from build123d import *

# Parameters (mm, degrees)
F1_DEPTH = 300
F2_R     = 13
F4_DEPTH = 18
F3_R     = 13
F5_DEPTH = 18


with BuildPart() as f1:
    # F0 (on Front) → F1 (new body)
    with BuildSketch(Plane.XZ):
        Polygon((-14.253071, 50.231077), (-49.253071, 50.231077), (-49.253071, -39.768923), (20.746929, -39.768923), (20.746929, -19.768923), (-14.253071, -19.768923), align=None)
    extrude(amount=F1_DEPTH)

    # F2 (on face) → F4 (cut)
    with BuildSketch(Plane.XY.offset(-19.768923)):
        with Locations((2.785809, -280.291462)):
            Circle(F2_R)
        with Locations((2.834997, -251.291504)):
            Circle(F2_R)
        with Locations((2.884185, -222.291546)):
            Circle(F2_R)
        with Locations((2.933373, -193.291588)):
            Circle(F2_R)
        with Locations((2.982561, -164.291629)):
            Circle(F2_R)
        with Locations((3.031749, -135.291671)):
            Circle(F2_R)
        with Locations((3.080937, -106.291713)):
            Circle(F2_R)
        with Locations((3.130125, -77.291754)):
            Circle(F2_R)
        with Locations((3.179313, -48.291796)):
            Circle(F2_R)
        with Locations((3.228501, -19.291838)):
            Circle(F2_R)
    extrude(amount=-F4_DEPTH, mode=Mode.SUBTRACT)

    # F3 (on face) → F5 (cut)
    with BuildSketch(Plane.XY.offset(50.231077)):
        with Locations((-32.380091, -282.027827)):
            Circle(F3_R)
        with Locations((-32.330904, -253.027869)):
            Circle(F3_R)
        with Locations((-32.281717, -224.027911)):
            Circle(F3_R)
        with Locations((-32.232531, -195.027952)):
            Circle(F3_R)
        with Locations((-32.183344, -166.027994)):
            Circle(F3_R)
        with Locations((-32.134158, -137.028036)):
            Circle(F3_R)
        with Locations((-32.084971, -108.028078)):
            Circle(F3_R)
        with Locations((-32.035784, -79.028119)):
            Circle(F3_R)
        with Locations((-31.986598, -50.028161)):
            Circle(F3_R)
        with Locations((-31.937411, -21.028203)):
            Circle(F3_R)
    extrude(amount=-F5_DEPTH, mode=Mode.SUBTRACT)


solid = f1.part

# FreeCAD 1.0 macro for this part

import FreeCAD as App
import Part
import Sketcher

V = App.Vector
Q = App.Units.Quantity


def add_polygon(sketch, points):
    """Adds a closed chain of lines whose ends are joined by coincident constraints."""
    first, n = sketch.GeometryCount, len(points)
    for a, b in zip(points, points[1:] + points[:1]):
        sketch.addGeometry(Part.LineSegment(App.Vector(*a, 0), App.Vector(*b, 0)), False)
    for i in range(n):
        sketch.addConstraint(Sketcher.Constraint("Coincident", first + i, 2, first + (i + 1) % n, 1))

doc = App.newDocument("Part")
body = doc.addObject("PartDesign::Body", "Body")

sketch1 = body.newObject("Sketcher::SketchObject", "Sketch")
sketch1.AttachmentSupport = (doc.getObject("XZ_Plane"), [""])
sketch1.MapMode = "FlatFace"
add_polygon(sketch1, [(-14, 50), (-49, 50), (-49, -40), (21, -40), (21, -20), (-14, -20)])
sketch1.addConstraint([
    Sketcher.Constraint("Horizontal", 0),
    Sketcher.Constraint("Vertical", 1),
    Sketcher.Constraint("Horizontal", 2),
    Sketcher.Constraint("Vertical", 3),
    Sketcher.Constraint("Horizontal", 4),
    Sketcher.Constraint("Vertical", 5),
    Sketcher.Constraint("Equal", 0, 4),
    Sketcher.Constraint("Equal", 2, 5),
    Sketcher.Constraint("DistanceX", 0, 2, 0, 1, Q("35 mm")),
    Sketcher.Constraint("DistanceY", 1, 2, 1, 1, Q("90 mm")),
    Sketcher.Constraint("DistanceX", 0, 2, -1, 1, Q("49.253071 mm")),
    Sketcher.Constraint("DistanceY", -1, 1, 0, 2, Q("50.231077 mm")),
])
pad1 = body.newObject("PartDesign::Pad", "Pad")
pad1.Profile = sketch1
pad1.Length = 300

sketch2 = body.newObject("Sketcher::SketchObject", "Sketch001")
sketch2.AttachmentSupport = (doc.getObject("XY_Plane"), [""])
sketch2.MapMode = "FlatFace"
sketch2.AttachmentOffset = App.Placement(V(0, 0, -19.768923), App.Rotation())
sketch2.addGeometry([
    Part.Circle(V(3, -280, 0), V(0, 0, 1), 13),
    Part.Circle(V(3, -251, 0), V(0, 0, 1), 13),
    Part.Circle(V(3, -222, 0), V(0, 0, 1), 13),
    Part.Circle(V(3, -193, 0), V(0, 0, 1), 13),
    Part.Circle(V(3, -164, 0), V(0, 0, 1), 13),
    Part.Circle(V(3, -135, 0), V(0, 0, 1), 13),
    Part.Circle(V(3, -106, 0), V(0, 0, 1), 13),
    Part.Circle(V(3, -77, 0), V(0, 0, 1), 13),
    Part.Circle(V(3, -48, 0), V(0, 0, 1), 13),
    Part.Circle(V(3, -19, 0), V(0, 0, 1), 13),
], False)
sketch2.addConstraint([
    Sketcher.Constraint("Equal", 0, 1),
    Sketcher.Constraint("Equal", 1, 2),
    Sketcher.Constraint("Equal", 2, 3),
    Sketcher.Constraint("Equal", 3, 4),
    Sketcher.Constraint("Equal", 4, 5),
    Sketcher.Constraint("Equal", 5, 6),
    Sketcher.Constraint("Equal", 6, 7),
    Sketcher.Constraint("Equal", 7, 8),
    Sketcher.Constraint("Equal", 8, 9),
    Sketcher.Constraint("Diameter", 0, Q("26 mm")),
    Sketcher.Constraint("DistanceX", -1, 1, 9, 3, Q("3.228501 mm")),
    Sketcher.Constraint("DistanceX", -1, 1, 0, 3, Q("2.785809 mm")),
    Sketcher.Constraint("DistanceX", -1, 1, 4, 3, Q("2.982561 mm")),
    Sketcher.Constraint("DistanceY", 4, 3, -1, 1, Q("164.291629 mm")),
    Sketcher.Constraint("DistanceX", -1, 1, 5, 3, Q("3.031749 mm")),
    Sketcher.Constraint("DistanceY", 5, 3, -1, 1, Q("135.291671 mm")),
    Sketcher.Constraint("DistanceX", 0, 3, 1, 3, Q("0.049188 mm")),
    Sketcher.Constraint("DistanceY", 0, 3, 1, 3, Q("28.999958 mm")),
    Sketcher.Constraint("DistanceX", 1, 3, 2, 3, Q("0.049188 mm")),
    Sketcher.Constraint("DistanceX", 2, 3, 3, 3, Q("0.049188 mm")),
    Sketcher.Constraint("DistanceY", 2, 3, 3, 3, Q("28.999958 mm")),
    Sketcher.Constraint("DistanceY", 3, 3, 4, 3, Q("28.999959 mm")),
    Sketcher.Constraint("DistanceY", 0, 3, 5, 3, Q("144.999791 mm")),
    Sketcher.Constraint("DistanceX", 5, 3, 6, 3, Q("0.049188 mm")),
    Sketcher.Constraint("DistanceY", 5, 3, 6, 3, Q("28.999958 mm")),
    Sketcher.Constraint("DistanceX", 6, 3, 7, 3, Q("0.049188 mm")),
    Sketcher.Constraint("DistanceY", 6, 3, 7, 3, Q("28.999959 mm")),
    Sketcher.Constraint("DistanceX", 7, 3, 8, 3, Q("0.049188 mm")),
    Sketcher.Constraint("DistanceY", 3, 3, 8, 3, Q("144.999792 mm")),
    Sketcher.Constraint("DistanceY", 4, 3, 9, 3, Q("144.999791 mm")),
])
pocket1 = body.newObject("PartDesign::Pocket", "Pocket")
pocket1.Profile = sketch2
pocket1.Length = 18

sketch3 = body.newObject("Sketcher::SketchObject", "Sketch002")
sketch3.AttachmentSupport = (doc.getObject("XY_Plane"), [""])
sketch3.MapMode = "FlatFace"
sketch3.AttachmentOffset = App.Placement(V(0, 0, 50.231077), App.Rotation())
sketch3.addGeometry([
    Part.Circle(V(-32, -282, 0), V(0, 0, 1), 13),
    Part.Circle(V(-32, -253, 0), V(0, 0, 1), 13),
    Part.Circle(V(-32, -224, 0), V(0, 0, 1), 13),
    Part.Circle(V(-32, -195, 0), V(0, 0, 1), 13),
    Part.Circle(V(-32, -166, 0), V(0, 0, 1), 13),
    Part.Circle(V(-32, -137, 0), V(0, 0, 1), 13),
    Part.Circle(V(-32, -108, 0), V(0, 0, 1), 13),
    Part.Circle(V(-32, -79, 0), V(0, 0, 1), 13),
    Part.Circle(V(-32, -50, 0), V(0, 0, 1), 13),
    Part.Circle(V(-32, -21, 0), V(0, 0, 1), 13),
], False)
sketch3.addConstraint([
    Sketcher.Constraint("Equal", 0, 1),
    Sketcher.Constraint("Equal", 1, 2),
    Sketcher.Constraint("Equal", 2, 3),
    Sketcher.Constraint("Equal", 3, 4),
    Sketcher.Constraint("Equal", 4, 5),
    Sketcher.Constraint("Equal", 5, 6),
    Sketcher.Constraint("Equal", 6, 7),
    Sketcher.Constraint("Equal", 7, 8),
    Sketcher.Constraint("Equal", 8, 9),
    Sketcher.Constraint("Diameter", 0, Q("26 mm")),
    Sketcher.Constraint("DistanceX", 8, 3, -1, 1, Q("31.986598 mm")),
    Sketcher.Constraint("DistanceX", 0, 3, -1, 1, Q("32.380091 mm")),
    Sketcher.Constraint("DistanceY", 1, 3, -1, 1, Q("253.027869 mm")),
    Sketcher.Constraint("DistanceY", 2, 3, -1, 1, Q("224.027911 mm")),
    Sketcher.Constraint("DistanceX", 3, 3, -1, 1, Q("32.232531 mm")),
    Sketcher.Constraint("DistanceY", 3, 3, -1, 1, Q("195.027952 mm")),
    Sketcher.Constraint("DistanceX", 6, 3, -1, 1, Q("32.084971 mm")),
    Sketcher.Constraint("DistanceY", 7, 3, -1, 1, Q("79.028119 mm")),
    Sketcher.Constraint("DistanceY", 8, 3, -1, 1, Q("50.028161 mm")),
    Sketcher.Constraint("DistanceX", 9, 3, -1, 1, Q("31.937411 mm")),
    Sketcher.Constraint("DistanceX", 1, 3, 4, 3, Q("0.14756 mm")),
    Sketcher.Constraint("DistanceY", 4, 3, 5, 3, Q("28.999958 mm")),
    Sketcher.Constraint("DistanceX", 2, 3, 5, 3, Q("0.147559 mm")),
    Sketcher.Constraint("DistanceY", 0, 3, 5, 3, Q("144.999791 mm")),
    Sketcher.Constraint("DistanceY", 1, 3, 6, 3, Q("144.999791 mm")),
    Sketcher.Constraint("DistanceX", 4, 3, 7, 3, Q("0.14756 mm")),
    Sketcher.Constraint("DistanceX", 5, 3, 8, 3, Q("0.14756 mm")),
    Sketcher.Constraint("DistanceY", 4, 3, 9, 3, Q("144.999791 mm")),
    Sketcher.Constraint("DistanceY", 0, 3, -1, 1, Q("282.027827 mm")),
    Sketcher.Constraint("DistanceX", 1, 3, -1, 1, Q("32.330904 mm")),
])
pocket2 = body.newObject("PartDesign::Pocket", "Pocket001")
pocket2.Profile = sketch3
pocket2.Length = 18

doc.recompute()
